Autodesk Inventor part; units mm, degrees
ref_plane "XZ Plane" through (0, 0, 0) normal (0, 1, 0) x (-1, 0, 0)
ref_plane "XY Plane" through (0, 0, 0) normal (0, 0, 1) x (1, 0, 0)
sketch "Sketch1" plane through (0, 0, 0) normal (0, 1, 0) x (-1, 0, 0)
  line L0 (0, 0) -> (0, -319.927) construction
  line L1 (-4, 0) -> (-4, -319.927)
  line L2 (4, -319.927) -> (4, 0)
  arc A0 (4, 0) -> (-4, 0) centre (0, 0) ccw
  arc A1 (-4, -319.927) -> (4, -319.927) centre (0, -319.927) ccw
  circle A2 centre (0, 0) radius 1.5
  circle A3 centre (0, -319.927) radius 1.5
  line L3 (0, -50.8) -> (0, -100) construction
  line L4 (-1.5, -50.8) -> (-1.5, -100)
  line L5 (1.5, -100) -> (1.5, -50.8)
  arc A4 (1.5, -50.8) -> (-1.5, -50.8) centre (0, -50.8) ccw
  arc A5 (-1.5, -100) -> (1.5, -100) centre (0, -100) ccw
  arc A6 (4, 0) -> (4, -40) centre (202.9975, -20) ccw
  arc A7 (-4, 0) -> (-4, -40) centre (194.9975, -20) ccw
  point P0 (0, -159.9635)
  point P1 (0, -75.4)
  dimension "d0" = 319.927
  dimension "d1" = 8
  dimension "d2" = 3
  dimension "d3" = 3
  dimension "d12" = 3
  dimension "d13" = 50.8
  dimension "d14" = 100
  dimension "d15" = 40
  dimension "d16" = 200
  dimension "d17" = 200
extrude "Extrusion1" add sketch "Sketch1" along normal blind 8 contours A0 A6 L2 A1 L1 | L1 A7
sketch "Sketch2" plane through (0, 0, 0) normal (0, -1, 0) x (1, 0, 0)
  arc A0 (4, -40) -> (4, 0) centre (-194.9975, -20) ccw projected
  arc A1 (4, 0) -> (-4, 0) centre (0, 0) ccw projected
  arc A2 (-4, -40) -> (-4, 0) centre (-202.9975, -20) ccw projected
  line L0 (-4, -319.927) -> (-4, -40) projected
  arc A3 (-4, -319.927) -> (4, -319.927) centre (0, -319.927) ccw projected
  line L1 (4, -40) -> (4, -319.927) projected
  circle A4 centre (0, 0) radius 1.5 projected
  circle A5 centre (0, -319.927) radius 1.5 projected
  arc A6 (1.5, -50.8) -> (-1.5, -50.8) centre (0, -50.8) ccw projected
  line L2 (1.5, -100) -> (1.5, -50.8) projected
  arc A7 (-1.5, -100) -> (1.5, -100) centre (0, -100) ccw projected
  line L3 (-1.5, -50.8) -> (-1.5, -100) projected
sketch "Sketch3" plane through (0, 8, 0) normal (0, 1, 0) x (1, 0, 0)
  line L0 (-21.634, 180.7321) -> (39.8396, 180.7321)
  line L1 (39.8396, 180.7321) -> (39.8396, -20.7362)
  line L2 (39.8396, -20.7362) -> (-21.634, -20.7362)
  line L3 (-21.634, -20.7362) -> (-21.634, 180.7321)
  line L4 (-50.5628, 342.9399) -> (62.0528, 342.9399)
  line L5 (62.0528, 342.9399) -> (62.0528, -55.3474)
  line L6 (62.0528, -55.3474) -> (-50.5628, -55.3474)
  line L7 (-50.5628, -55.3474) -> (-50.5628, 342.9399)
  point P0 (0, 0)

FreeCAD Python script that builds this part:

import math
import FreeCAD as App
import Part
import Sketcher
Q = App.Units.Quantity

doc = App.newDocument("Part")
body = doc.addObject("PartDesign::Body", "Body")

# Sketch on XZ plane
sketch1 = doc.addObject("Sketcher::SketchObject", "Sketch")
body.addObject(sketch1)
sketch1.AttachmentSupport = (doc.XZ_Plane, [""])
sketch1.MapMode = "FlatFace"
sketch1.addGeometry([
    Part.ArcOfCircle(Part.Circle(App.Vector(0, 0, 0), App.Vector(0, 0, 1), 4), math.radians(0), math.radians(180)),  # 0
    Part.ArcOfCircle(Part.Circle(App.Vector(-195, -20, 0), App.Vector(0, 0, 1), 200), math.radians(-5.74), math.radians(5.74)),  # 1
    Part.LineSegment(App.Vector(4, -40, 0), App.Vector(4, -319.9, 0)),  # 2
    Part.ArcOfCircle(Part.Circle(App.Vector(0, -319.9, 0), App.Vector(0, 0, 1), 4), math.radians(180), math.radians(360)),  # 3
    Part.LineSegment(App.Vector(-4, -319.9, 0), App.Vector(-4, -40, 0)),  # 4
    Part.ArcOfCircle(Part.Circle(App.Vector(-203, -20, 0), App.Vector(0, 0, 1), 200), math.radians(-5.74), math.radians(5.74)),  # 5
    Part.Circle(App.Vector(0, -319.9, 0), App.Vector(0, 0, 1), 1.5),  # 6
    Part.LineSegment(App.Vector(1.5, -100, 0), App.Vector(1.5, -50.8, 0)),  # 7
    Part.ArcOfCircle(Part.Circle(App.Vector(0, -50.8, 0), App.Vector(0, 0, 1), 1.5), math.radians(0), math.radians(180)),  # 8
    Part.LineSegment(App.Vector(-1.5, -50.8, 0), App.Vector(-1.5, -100, 0)),  # 9
    Part.ArcOfCircle(Part.Circle(App.Vector(0, -100, 0), App.Vector(0, 0, 1), 1.5), math.radians(180), math.radians(360)),  # 10
    Part.Circle(App.Vector(0, 0, 0), App.Vector(0, 0, 1), 1.5),  # 11
], False)
sketch1.addConstraint([
    Sketcher.Constraint("Coincident", 0, 1, 1, 2),
    Sketcher.Constraint("Coincident", 1, 1, 2, 1),
    Sketcher.Constraint("Tangent", 2, 2, 3, 2),
    Sketcher.Constraint("Tangent", 3, 1, 4, 1),
    Sketcher.Constraint("Coincident", 4, 2, 5, 1),
    Sketcher.Constraint("Coincident", 5, 2, 0, 2),
    Sketcher.Constraint("Tangent", 7, 2, 8, 1),
    Sketcher.Constraint("Tangent", 8, 2, 9, 1),
    Sketcher.Constraint("Tangent", 9, 2, 10, 1),
    Sketcher.Constraint("Tangent", 10, 2, 7, 1),
    Sketcher.Constraint("Vertical", 2),
    Sketcher.Constraint("Vertical", 4),
    Sketcher.Constraint("Vertical", 7),
    Sketcher.Constraint("Vertical", 9),
    Sketcher.Constraint("Coincident", 0, 3, -1, 1),
    Sketcher.Constraint("Coincident", 11, 3, -1, 1),
    Sketcher.Constraint("Coincident", 6, 3, 3, 3),
    Sketcher.Constraint("Equal", 0, 3),
    Sketcher.Constraint("Equal", 1, 5),
    Sketcher.Constraint("Equal", 6, 8),
    Sketcher.Constraint("Equal", 10, 11),
    Sketcher.Constraint("Symmetric", 1, 1, 4, 2, -2),
    Sketcher.Constraint("PointOnObject", 8, 3, -2),
    Sketcher.Constraint("PointOnObject", 0, 1, -1),
    Sketcher.Constraint("PointOnObject", 5, 2, -1),
    Sketcher.Constraint("Diameter", 6, Q("3 mm")),
    Sketcher.Constraint("Radius", 0, Q("4 mm")),
    Sketcher.Constraint("Radius", 1, Q("200 mm")),
    Sketcher.Constraint("DistanceY", 10, 3, -1, 1, Q("100 mm")),
    Sketcher.Constraint("DistanceY", 1, 1, -1, 1, Q("40 mm")),
    Sketcher.Constraint("DistanceY", 8, 3, -1, 1, Q("50.8 mm")),
    Sketcher.Constraint("DistanceY", 3, 3, -1, 1, Q("319.927 mm")),
])
pad1 = doc.addObject("PartDesign::Pad", "Pad")
body.addObject(pad1)
pad1.Profile = sketch1
pad1.Length = 8
pad1.Reversed = True

doc.recompute()
